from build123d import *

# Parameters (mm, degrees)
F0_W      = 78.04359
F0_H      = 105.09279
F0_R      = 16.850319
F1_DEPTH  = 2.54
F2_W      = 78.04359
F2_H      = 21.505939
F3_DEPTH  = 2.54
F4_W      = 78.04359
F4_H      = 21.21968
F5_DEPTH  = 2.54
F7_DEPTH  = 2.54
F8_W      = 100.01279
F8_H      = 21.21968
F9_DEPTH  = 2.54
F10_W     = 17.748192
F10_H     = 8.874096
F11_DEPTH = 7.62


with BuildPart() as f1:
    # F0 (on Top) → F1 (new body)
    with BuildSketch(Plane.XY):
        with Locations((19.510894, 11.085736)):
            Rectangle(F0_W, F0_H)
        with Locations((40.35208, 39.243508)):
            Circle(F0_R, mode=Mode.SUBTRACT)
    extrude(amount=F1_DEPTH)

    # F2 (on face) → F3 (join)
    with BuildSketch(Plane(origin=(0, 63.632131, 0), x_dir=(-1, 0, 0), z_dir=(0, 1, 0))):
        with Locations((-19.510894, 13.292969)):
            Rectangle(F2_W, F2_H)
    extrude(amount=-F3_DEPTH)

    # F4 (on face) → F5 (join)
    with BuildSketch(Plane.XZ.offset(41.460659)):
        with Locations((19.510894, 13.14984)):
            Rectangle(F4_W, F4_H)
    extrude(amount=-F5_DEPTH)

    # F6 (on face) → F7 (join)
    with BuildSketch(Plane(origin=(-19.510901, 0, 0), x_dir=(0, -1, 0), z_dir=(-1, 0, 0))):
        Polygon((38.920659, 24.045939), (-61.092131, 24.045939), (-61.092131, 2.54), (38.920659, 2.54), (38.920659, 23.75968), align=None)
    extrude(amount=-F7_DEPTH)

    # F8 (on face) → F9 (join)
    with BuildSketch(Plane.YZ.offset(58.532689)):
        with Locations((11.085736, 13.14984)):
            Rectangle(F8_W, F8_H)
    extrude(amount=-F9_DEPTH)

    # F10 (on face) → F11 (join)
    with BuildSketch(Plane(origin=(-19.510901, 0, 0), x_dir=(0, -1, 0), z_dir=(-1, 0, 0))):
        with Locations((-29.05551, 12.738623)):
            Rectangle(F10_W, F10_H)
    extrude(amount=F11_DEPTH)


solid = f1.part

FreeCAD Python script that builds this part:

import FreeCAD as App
import Part
import Sketcher
Q = App.Units.Quantity


def add_polygon(sketch, points):
    """Adds a closed chain of lines whose ends are joined by coincident constraints."""
    first, n = sketch.GeometryCount, len(points)
    for a, b in zip(points, points[1:] + points[:1]):
        sketch.addGeometry(Part.LineSegment(App.Vector(*a, 0), App.Vector(*b, 0)), False)
    for i in range(n):
        sketch.addConstraint(Sketcher.Constraint("Coincident", first + i, 2, first + (i + 1) % n, 1))

doc = App.newDocument("Part")
body = doc.addObject("PartDesign::Body", "Body")

# Sketch on XY plane
sketch1 = doc.addObject("Sketcher::SketchObject", "Sketch")
body.addObject(sketch1)
sketch1.AttachmentSupport = (doc.XY_Plane, [""])
sketch1.MapMode = "FlatFace"
add_polygon(sketch1, [(-19.510901, 63.632131), (-19.510901, -41.460659), (58.532689, -41.460659), (58.532689, 63.632131)])  # lines 0-3
sketch1.addGeometry(Part.Circle(App.Vector(40.35208, 39.243508, 0), App.Vector(0, 0, 1), 16.850319), False)  # 4
sketch1.addConstraint(Sketcher.Constraint("Vertical", 0))
sketch1.addConstraint(Sketcher.Constraint("Horizontal", 1))
sketch1.addConstraint(Sketcher.Constraint("Vertical", 2))
sketch1.addConstraint(Sketcher.Constraint("Horizontal", 3))
sketch1.addConstraint(Sketcher.Constraint("Diameter", 4, Q("33.700638 mm")))
sketch1.addConstraint(Sketcher.Constraint("DistanceX", 1, 1, 1, 2, Q("78.04359 mm")))
sketch1.addConstraint(Sketcher.Constraint("DistanceY", 0, 2, 0, 1, Q("105.09279 mm")))
sketch1.addConstraint(Sketcher.Constraint("DistanceX", 0, 2, -1, 1, Q("19.510901 mm")))
sketch1.addConstraint(Sketcher.Constraint("DistanceX", -1, 1, 4, 3, Q("40.35208 mm")))
sketch1.addConstraint(Sketcher.Constraint("DistanceY", 0, 2, -1, 1, Q("41.460659 mm")))
sketch1.addConstraint(Sketcher.Constraint("DistanceY", -1, 1, 4, 3, Q("39.243508 mm")))
pad1 = doc.addObject("PartDesign::Pad", "Pad")
body.addObject(pad1)
pad1.Profile = sketch1
pad1.Length = Q("0.1 in")

# Sketch on XZ plane
sketch2 = doc.addObject("Sketcher::SketchObject", "Sketch001")
body.addObject(sketch2)
sketch2.AttachmentSupport = (doc.XZ_Plane, [""])
sketch2.MapMode = "FlatFace"
sketch2.AttachmentOffset = App.Placement(App.Vector(0, 0, -63.632131), App.Rotation())
add_polygon(sketch2, [(58.532689, 24.045938), (58.532689, 2.539999), (-19.510901, 2.539999), (-19.510901, 24.045938)])  # lines 0-3
sketch2.addConstraint(Sketcher.Constraint("Vertical", 0))
sketch2.addConstraint(Sketcher.Constraint("Horizontal", 1))
sketch2.addConstraint(Sketcher.Constraint("Vertical", 2))
sketch2.addConstraint(Sketcher.Constraint("Horizontal", 3))
sketch2.addConstraint(Sketcher.Constraint("DistanceY", -1, 1, 0, 2, Q("0.1 in")))
sketch2.addConstraint(Sketcher.Constraint("DistanceX", 1, 2, 1, 1, Q("78.04359 mm")))
sketch2.addConstraint(Sketcher.Constraint("DistanceY", 0, 2, 0, 1, Q("21.505939 mm")))
sketch2.addConstraint(Sketcher.Constraint("DistanceX", 1, 2, -1, 1, Q("19.510901 mm")))
pad2 = doc.addObject("PartDesign::Pad", "Pad001")
body.addObject(pad2)
pad2.Profile = sketch2
pad2.Length = Q("0.1 in")

# Sketch on XZ plane
sketch3 = doc.addObject("Sketcher::SketchObject", "Sketch002")
body.addObject(sketch3)
sketch3.AttachmentSupport = (doc.XZ_Plane, [""])
sketch3.MapMode = "FlatFace"
sketch3.AttachmentOffset = App.Placement(App.Vector(0, 0, 41.460659), App.Rotation())
add_polygon(sketch3, [(-19.510901, 23.75968), (-19.510901, 2.54), (58.532689, 2.54), (58.532689, 23.75968)])  # lines 0-3
sketch3.addConstraint(Sketcher.Constraint("Vertical", 0))
sketch3.addConstraint(Sketcher.Constraint("Horizontal", 1))
sketch3.addConstraint(Sketcher.Constraint("Vertical", 2))
sketch3.addConstraint(Sketcher.Constraint("Horizontal", 3))
sketch3.addConstraint(Sketcher.Constraint("DistanceY", -1, 1, 0, 2, Q("0.1 in")))
sketch3.addConstraint(Sketcher.Constraint("DistanceX", 1, 1, 1, 2, Q("78.04359 mm")))
sketch3.addConstraint(Sketcher.Constraint("DistanceY", 0, 2, 0, 1, Q("21.21968 mm")))
sketch3.addConstraint(Sketcher.Constraint("DistanceX", 0, 2, -1, 1, Q("19.510901 mm")))
pad3 = doc.addObject("PartDesign::Pad", "Pad002")
body.addObject(pad3)
pad3.Profile = sketch3
pad3.Length = Q("0.1 in")
pad3.Reversed = True

# Sketch on YZ plane
sketch4 = doc.addObject("Sketcher::SketchObject", "Sketch003")
body.addObject(sketch4)
sketch4.AttachmentSupport = (doc.YZ_Plane, [""])
sketch4.MapMode = "FlatFace"
sketch4.AttachmentOffset = App.Placement(App.Vector(0, 0, -19.510901), App.Rotation())
add_polygon(sketch4, [(-38.920659, 24.045939), (61.092131, 24.045939), (61.092131, 2.54), (-38.920659, 2.54)])  # lines 0-3
sketch4.addConstraint(Sketcher.Constraint("Horizontal", 0))
sketch4.addConstraint(Sketcher.Constraint("Vertical", 1))
sketch4.addConstraint(Sketcher.Constraint("Horizontal", 2))
sketch4.addConstraint(Sketcher.Constraint("Vertical", 3))
sketch4.addConstraint(Sketcher.Constraint("DistanceY", -1, 1, 1, 2, Q("0.1 in")))
sketch4.addConstraint(Sketcher.Constraint("DistanceX", 0, 1, 0, 2, Q("100.01279 mm")))
sketch4.addConstraint(Sketcher.Constraint("DistanceY", 1, 2, 1, 1, Q("21.505939 mm")))
sketch4.addConstraint(Sketcher.Constraint("DistanceX", -1, 1, 0, 2, Q("61.092131 mm")))
pad4 = doc.addObject("PartDesign::Pad", "Pad003")
body.addObject(pad4)
pad4.Profile = sketch4
pad4.Length = Q("0.1 in")

# Sketch on YZ plane
sketch5 = doc.addObject("Sketcher::SketchObject", "Sketch004")
body.addObject(sketch5)
sketch5.AttachmentSupport = (doc.YZ_Plane, [""])
sketch5.MapMode = "FlatFace"
sketch5.AttachmentOffset = App.Placement(App.Vector(0, 0, 58.532689), App.Rotation())
add_polygon(sketch5, [(-38.920659, 23.75968), (-38.920659, 2.54), (61.092131, 2.54), (61.092131, 23.75968)])  # lines 0-3
sketch5.addConstraint(Sketcher.Constraint("Vertical", 0))
sketch5.addConstraint(Sketcher.Constraint("Horizontal", 1))
sketch5.addConstraint(Sketcher.Constraint("Vertical", 2))
sketch5.addConstraint(Sketcher.Constraint("Horizontal", 3))
sketch5.addConstraint(Sketcher.Constraint("DistanceY", -1, 1, 0, 2, Q("0.1 in")))
sketch5.addConstraint(Sketcher.Constraint("DistanceX", 1, 1, 1, 2, Q("100.01279 mm")))
sketch5.addConstraint(Sketcher.Constraint("DistanceY", 0, 2, 0, 1, Q("21.21968 mm")))
sketch5.addConstraint(Sketcher.Constraint("DistanceX", 0, 2, -1, 1, Q("38.920659 mm")))
pad5 = doc.addObject("PartDesign::Pad", "Pad004")
body.addObject(pad5)
pad5.Profile = sketch5
pad5.Length = Q("0.1 in")
pad5.Reversed = True

# Sketch on YZ plane
sketch6 = doc.addObject("Sketcher::SketchObject", "Sketch005")
body.addObject(sketch6)
sketch6.AttachmentSupport = (doc.YZ_Plane, [""])
sketch6.MapMode = "FlatFace"
sketch6.AttachmentOffset = App.Placement(App.Vector(0, 0, -19.510901), App.Rotation())
add_polygon(sketch6, [(37.929606, 17.175671), (37.929606, 8.301575), (20.181414, 8.301575), (20.181414, 17.175671)])  # lines 0-3
sketch6.addConstraint(Sketcher.Constraint("Vertical", 0))
sketch6.addConstraint(Sketcher.Constraint("Horizontal", 1))
sketch6.addConstraint(Sketcher.Constraint("Vertical", 2))
sketch6.addConstraint(Sketcher.Constraint("Horizontal", 3))
sketch6.addConstraint(Sketcher.Constraint("DistanceX", 1, 2, 1, 1, Q("17.748192 mm")))
sketch6.addConstraint(Sketcher.Constraint("DistanceY", 0, 2, 0, 1, Q("8.874096 mm")))
sketch6.addConstraint(Sketcher.Constraint("DistanceY", -1, 1, 2, 2, Q("17.175671 mm")))
sketch6.addConstraint(Sketcher.Constraint("DistanceX", -1, 1, 0, 2, Q("37.929606 mm")))
pad6 = doc.addObject("PartDesign::Pad", "Pad005")
body.addObject(pad6)
pad6.Profile = sketch6
pad6.Length = Q("0.3 in")
pad6.Reversed = True

doc.recompute()
